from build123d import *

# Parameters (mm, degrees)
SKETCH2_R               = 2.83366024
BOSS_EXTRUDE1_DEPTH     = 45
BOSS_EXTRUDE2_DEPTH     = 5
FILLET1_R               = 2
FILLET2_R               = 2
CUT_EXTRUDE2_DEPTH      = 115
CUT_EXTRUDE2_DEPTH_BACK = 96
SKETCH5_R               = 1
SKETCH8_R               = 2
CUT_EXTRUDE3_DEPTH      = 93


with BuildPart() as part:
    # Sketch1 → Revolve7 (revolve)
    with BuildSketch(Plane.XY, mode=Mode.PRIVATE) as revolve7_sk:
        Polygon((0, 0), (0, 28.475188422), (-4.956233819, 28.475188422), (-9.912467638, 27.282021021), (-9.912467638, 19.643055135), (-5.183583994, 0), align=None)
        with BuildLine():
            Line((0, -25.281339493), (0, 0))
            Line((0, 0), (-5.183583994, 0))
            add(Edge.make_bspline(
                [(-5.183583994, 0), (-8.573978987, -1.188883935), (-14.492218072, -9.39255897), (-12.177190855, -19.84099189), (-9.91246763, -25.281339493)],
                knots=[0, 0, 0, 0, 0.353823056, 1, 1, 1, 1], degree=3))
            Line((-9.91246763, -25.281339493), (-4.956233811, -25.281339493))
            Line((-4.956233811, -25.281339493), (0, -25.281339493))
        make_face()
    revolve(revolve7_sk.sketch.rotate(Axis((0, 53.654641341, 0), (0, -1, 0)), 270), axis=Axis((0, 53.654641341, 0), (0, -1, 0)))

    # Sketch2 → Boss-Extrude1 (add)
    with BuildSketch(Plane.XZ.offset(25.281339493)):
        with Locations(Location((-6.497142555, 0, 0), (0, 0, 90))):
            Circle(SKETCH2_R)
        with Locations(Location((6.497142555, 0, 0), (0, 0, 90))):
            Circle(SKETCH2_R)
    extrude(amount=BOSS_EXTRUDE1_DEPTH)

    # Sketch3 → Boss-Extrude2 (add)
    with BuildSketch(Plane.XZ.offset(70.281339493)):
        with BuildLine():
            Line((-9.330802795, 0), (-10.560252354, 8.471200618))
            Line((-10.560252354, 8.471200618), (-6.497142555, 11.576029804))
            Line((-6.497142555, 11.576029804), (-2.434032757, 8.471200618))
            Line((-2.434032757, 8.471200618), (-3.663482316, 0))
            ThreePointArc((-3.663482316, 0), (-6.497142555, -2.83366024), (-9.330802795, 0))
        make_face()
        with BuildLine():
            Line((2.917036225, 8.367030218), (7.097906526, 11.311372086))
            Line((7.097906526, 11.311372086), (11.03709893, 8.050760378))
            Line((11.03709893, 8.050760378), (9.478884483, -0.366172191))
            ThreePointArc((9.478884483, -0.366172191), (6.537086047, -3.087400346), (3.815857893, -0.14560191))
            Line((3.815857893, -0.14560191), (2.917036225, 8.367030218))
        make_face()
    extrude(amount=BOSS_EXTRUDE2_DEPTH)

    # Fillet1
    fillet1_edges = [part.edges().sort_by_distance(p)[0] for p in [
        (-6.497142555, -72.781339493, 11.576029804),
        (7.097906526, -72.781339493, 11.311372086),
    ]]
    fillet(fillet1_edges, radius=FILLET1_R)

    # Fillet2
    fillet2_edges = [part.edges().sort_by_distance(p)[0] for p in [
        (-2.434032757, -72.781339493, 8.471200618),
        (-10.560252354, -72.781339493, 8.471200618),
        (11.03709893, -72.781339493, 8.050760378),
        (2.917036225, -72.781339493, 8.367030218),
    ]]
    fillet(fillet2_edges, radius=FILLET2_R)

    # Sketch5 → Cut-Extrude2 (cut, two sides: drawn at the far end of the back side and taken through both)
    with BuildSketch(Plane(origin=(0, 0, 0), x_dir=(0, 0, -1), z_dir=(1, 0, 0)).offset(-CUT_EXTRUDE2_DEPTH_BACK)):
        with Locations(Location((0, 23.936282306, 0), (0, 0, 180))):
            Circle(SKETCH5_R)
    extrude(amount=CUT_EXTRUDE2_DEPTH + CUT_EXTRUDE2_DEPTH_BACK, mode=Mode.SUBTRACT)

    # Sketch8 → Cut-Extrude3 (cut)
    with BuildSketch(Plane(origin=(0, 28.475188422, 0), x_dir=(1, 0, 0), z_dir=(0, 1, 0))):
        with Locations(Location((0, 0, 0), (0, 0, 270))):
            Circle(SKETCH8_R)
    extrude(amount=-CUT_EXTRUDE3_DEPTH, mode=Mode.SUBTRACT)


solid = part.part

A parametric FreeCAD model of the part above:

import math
import FreeCAD as App
import Part
import Sketcher


def edges_at(feature, points):
    """Names of the edges that pass closest to the given points."""
    edges = feature.Shape.Edges
    near = lambda p: min(range(len(edges)), key=lambda i: edges[i].distToShape(Part.Vertex(*p))[0])
    return sorted({f"Edge{near(p) + 1}" for p in points})

doc = App.newDocument("Part")
body = doc.addObject("PartDesign::Body", "Body")

sketch1 = doc.addObject("Sketcher::SketchObject", "Sketch")
body.addObject(sketch1)
sketch1.AttachmentSupport = (doc.XY_Plane, [""])
sketch1.MapMode = "FlatFace"
sketch1.addGeometry(Part.LineSegment(App.Vector(0, 28.475188, 0), App.Vector(-4.956234, 28.475188, 0)), False)
sketch1.addGeometry(Part.LineSegment(App.Vector(-4.956234, 28.475188, 0), App.Vector(-9.912468, 27.282021, 0)), False)
sketch1.addGeometry(Part.LineSegment(App.Vector(-9.912468, 27.282021, 0), App.Vector(-9.912468, 19.643055, 0)), False)
sketch1.addGeometry(Part.LineSegment(App.Vector(-9.912468, 19.643055, 0), App.Vector(-5.183584, 0, 0)), False)
sketch1.addGeometry(Part.BSplineCurve([App.Vector(-5.183584, 0, 0), App.Vector(-8.573979, -1.188884, 0), App.Vector(-14.492218, -9.392559, 0), App.Vector(-12.177191, -19.840992, 0), App.Vector(-9.912468, -25.281339, 0)], [4, 1, 4], [0, 0.353823056, 1], False, 3, [1, 1, 1, 1, 1], False), False)
sketch1.addGeometry(Part.LineSegment(App.Vector(-9.912468, -25.281339, 0), App.Vector(0, -25.281339, 0)), False)
sketch1.addGeometry(Part.LineSegment(App.Vector(0, -25.281339, 0), App.Vector(0, 28.475188, 0)), False)
sketch1.addConstraint(Sketcher.Constraint("Block", 4))
sketch1.addConstraint(Sketcher.Constraint("Coincident", 0, 2, 1, 1))
sketch1.addConstraint(Sketcher.Constraint("Coincident", 1, 2, 2, 1))
sketch1.addConstraint(Sketcher.Constraint("Coincident", 2, 2, 3, 1))
sketch1.addConstraint(Sketcher.Constraint("Coincident", 3, 2, 4, 1))
sketch1.addConstraint(Sketcher.Constraint("Coincident", 4, 2, 5, 1))
sketch1.addConstraint(Sketcher.Constraint("Coincident", 5, 2, 6, 1))
sketch1.addConstraint(Sketcher.Constraint("Coincident", 6, 2, 0, 1))
sketch1.addConstraint(Sketcher.Constraint("Horizontal", 0))
sketch1.addConstraint(Sketcher.Constraint("Vertical", 2))
sketch1.addConstraint(Sketcher.Constraint("Horizontal", 5))
sketch1.addConstraint(Sketcher.Constraint("Vertical", 6))
sketch1.addConstraint(Sketcher.Constraint("PointOnObject", 5, 2, -2))
sketch1.addConstraint(Sketcher.Constraint("DistanceX", 0, 2, 0, 1, 4.956234))
sketch1.addConstraint(Sketcher.Constraint("DistanceY", 2, 2, 2, 1, 7.638966))
sketch1.addConstraint(Sketcher.Constraint("DistanceY", 6, 1, 6, 2, 53.756528))
sketch1.addConstraint(Sketcher.Constraint("DistanceY", -1, 1, 1, 2, 27.282021))
sketch1.addConstraint(Sketcher.Constraint("Distance", 1, 5.097833))
revolution = doc.addObject("PartDesign::Revolution", "Revolution")
body.addObject(revolution)
revolution.Profile = sketch1
revolution.ReferenceAxis = (sketch1, ["V_Axis"])
revolution.Angle = 360

sketch2 = doc.addObject("Sketcher::SketchObject", "Sketch001")
body.addObject(sketch2)
sketch2.AttachmentSupport = (doc.XZ_Plane, [""])
sketch2.MapMode = "FlatFace"
sketch2.AttachmentOffset = App.Placement(App.Vector(0, 0, 25.281339), App.Rotation())
sketch2.addGeometry(Part.Circle(App.Vector(-6.5, 0, 0), App.Vector(0, 0, 1), 2.8), False)
sketch2.addGeometry(Part.Circle(App.Vector(6.5, 0, 0), App.Vector(0, 0, 1), 2.8), False)
sketch2.addConstraint(Sketcher.Constraint("Equal", 0, 1))
sketch2.addConstraint(Sketcher.Constraint("Symmetric", 0, 3, 1, 3, -1, 1))
sketch2.addConstraint(Sketcher.Constraint("PointOnObject", 0, 3, -1))
sketch2.addConstraint(Sketcher.Constraint("Diameter", 0, 5.66732))
sketch2.addConstraint(Sketcher.Constraint("DistanceX", 0, 3, -1, 1, 6.497143))
pad1 = doc.addObject("PartDesign::Pad", "Pad")
body.addObject(pad1)
pad1.Profile = sketch2
pad1.Length = 45

sketch3 = doc.addObject("Sketcher::SketchObject", "Sketch002")
body.addObject(sketch3)
sketch3.AttachmentSupport = (doc.XZ_Plane, [""])
sketch3.MapMode = "FlatFace"
sketch3.AttachmentOffset = App.Placement(App.Vector(0, 0, 70.281339), App.Rotation())
sketch3.addGeometry(Part.LineSegment(App.Vector(-10.560252, 8.471201, 0), App.Vector(-9.330803, 0, 0)), False)
sketch3.addGeometry(Part.ArcOfCircle(Part.Circle(App.Vector(-6.497143, 0, 0), App.Vector(0, 0, 1), 2.83366), math.radians(180), math.radians(360)), False)
sketch3.addGeometry(Part.LineSegment(App.Vector(-3.663482, 0, 0), App.Vector(-2.434033, 8.471201, 0)), False)
sketch3.addGeometry(Part.LineSegment(App.Vector(-2.434033, 8.471201, 0), App.Vector(-6.497143, 11.57603, 0)), False)
sketch3.addGeometry(Part.LineSegment(App.Vector(-6.497143, 11.57603, 0), App.Vector(-10.560252, 8.471201, 0)), False)
sketch3.addGeometry(Part.LineSegment(App.Vector(7.097907, 11.311372, 0), App.Vector(2.917036, 8.36703, 0)), False)
sketch3.addGeometry(Part.LineSegment(App.Vector(2.917036, 8.36703, 0), App.Vector(3.815858, -0.145602, 0)), False)
sketch3.addGeometry(Part.ArcOfCircle(Part.Circle(App.Vector(6.647371, -0.255887, 0), App.Vector(0, 0, 1), 2.83366), math.radians(177.769503), math.radians(357.769503)), False)
sketch3.addGeometry(Part.LineSegment(App.Vector(9.478884, -0.366172, 0), App.Vector(11.037099, 8.05076, 0)), False)
sketch3.addGeometry(Part.LineSegment(App.Vector(11.037099, 8.05076, 0), App.Vector(7.097907, 11.311372, 0)), False)
sketch3.addConstraint(Sketcher.Constraint("Coincident", 0, 2, 1, 1))
sketch3.addConstraint(Sketcher.Constraint("Coincident", 1, 2, 2, 1))
sketch3.addConstraint(Sketcher.Constraint("Coincident", 2, 2, 3, 1))
sketch3.addConstraint(Sketcher.Constraint("Coincident", 3, 2, 4, 1))
sketch3.addConstraint(Sketcher.Constraint("Coincident", 4, 2, 0, 1))
sketch3.addConstraint(Sketcher.Constraint("Coincident", 5, 2, 6, 1))
sketch3.addConstraint(Sketcher.Constraint("Coincident", 6, 2, 7, 1))
sketch3.addConstraint(Sketcher.Constraint("Coincident", 7, 2, 8, 1))
sketch3.addConstraint(Sketcher.Constraint("Coincident", 8, 2, 9, 1))
sketch3.addConstraint(Sketcher.Constraint("Coincident", 9, 2, 5, 1))
sketch3.addConstraint(Sketcher.Constraint("PointOnObject", 1, 3, -1))
sketch3.addConstraint(Sketcher.Constraint("PointOnObject", 0, 2, -1))
sketch3.addConstraint(Sketcher.Constraint("PointOnObject", 1, 2, -1))
sketch3.addConstraint(Sketcher.Constraint("Radius", 1, 2.83366))
sketch3.addConstraint(Sketcher.Constraint("Radius", 7, 2.83366))
sketch3.addConstraint(Sketcher.Constraint("DistanceY", 5, 2, 3, 2, 3.209))
sketch3.addConstraint(Sketcher.Constraint("DistanceX", 1, 3, 6, 2, 10.313))
sketch3.addConstraint(Sketcher.Constraint("DistanceY", -1, 1, 2, 2, 8.471201))
sketch3.addConstraint(Sketcher.Constraint("DistanceY", -1, 1, 4, 2, 8.471201))
sketch3.addConstraint(Sketcher.Constraint("DistanceY", 6, 2, -1, 1, 0.145602))
sketch3.addConstraint(Sketcher.Constraint("DistanceX", -1, 1, 8, 2, 11.037099))
sketch3.addConstraint(Sketcher.Constraint("DistanceX", -1, 1, 7, 3, 6.647371))
sketch3.addConstraint(Sketcher.Constraint("DistanceY", -1, 1, 3, 2, 11.57603))
sketch3.addConstraint(Sketcher.Constraint("DistanceY", -1, 1, 8, 2, 8.05076))
sketch3.addConstraint(Sketcher.Constraint("DistanceX", 1, 2, 2, 2, 1.22945))
sketch3.addConstraint(Sketcher.Constraint("DistanceX", 3, 2, 2, 2, 4.06311))
sketch3.addConstraint(Sketcher.Constraint("DistanceX", 4, 2, 3, 2, 4.06311))
sketch3.addConstraint(Sketcher.Constraint("DistanceX", 2, 2, 5, 2, 5.351069))
sketch3.addConstraint(Sketcher.Constraint("DistanceY", 7, 2, 6, 2, 0.22057))
sketch3.addConstraint(Sketcher.Constraint("DistanceX", 6, 2, 8, 2, 7.221241))
sketch3.addConstraint(Sketcher.Constraint("DistanceY", 8, 2, 9, 2, 3.260612))
sketch3.addConstraint(Sketcher.Constraint("DistanceX", 5, 2, 9, 2, 4.18087))
pad2 = doc.addObject("PartDesign::Pad", "Pad001")
body.addObject(pad2)
pad2.Profile = sketch3
pad2.Length = 5
doc.recompute()

fillet = doc.addObject("PartDesign::Fillet", "Fillet")
body.addObject(fillet)
fillet.Base = (pad2, edges_at(pad2, [(-6.497, -72.781, 11.576), (7.098, -72.781, 11.311)]))
fillet.Radius = 2
doc.recompute()

fillet2 = doc.addObject("PartDesign::Fillet", "Fillet001")
body.addObject(fillet2)
fillet2.Base = (fillet, edges_at(fillet, [
    (-2.434, -72.781, 8.471),
    (-10.56, -72.781, 8.471),
    (11.037, -72.781, 8.051),
    (2.917, -72.781, 8.367),
]))
fillet2.Radius = 2

sketch4 = doc.addObject("Sketcher::SketchObject", "Sketch003")
body.addObject(sketch4)
sketch4.AttachmentSupport = (doc.YZ_Plane, [""])
sketch4.MapMode = "FlatFace"
sketch4.addGeometry(Part.Circle(App.Vector(23.9, 0, 0), App.Vector(0, 0, 1), 1), False)
sketch4.addConstraint(Sketcher.Constraint("PointOnObject", 0, 3, -1))
sketch4.addConstraint(Sketcher.Constraint("Diameter", 0, 2.0))
sketch4.addConstraint(Sketcher.Constraint("DistanceX", -1, 1, 0, 3, 23.936282))
pocket1 = doc.addObject("PartDesign::Pocket", "Pocket")
body.addObject(pocket1)
pocket1.Profile = sketch4
pocket1.Type = "ThroughAll"
pocket1.Midplane = True

sketch5 = doc.addObject("Sketcher::SketchObject", "Sketch004")
body.addObject(sketch5)
sketch5.AttachmentSupport = (doc.XZ_Plane, [""])
sketch5.MapMode = "FlatFace"
sketch5.AttachmentOffset = App.Placement(App.Vector(0, 0, -28.475188), App.Rotation())
sketch5.addGeometry(Part.Circle(App.Vector(0, 0, 0), App.Vector(0, 0, 1), 2), False)
sketch5.addConstraint(Sketcher.Constraint("Coincident", 0, 3, -1, 1))
sketch5.addConstraint(Sketcher.Constraint("Diameter", 0, 4.0))
pocket2 = doc.addObject("PartDesign::Pocket", "Pocket001")
body.addObject(pocket2)
pocket2.Profile = sketch5
pocket2.Length = 93
pocket2.Reversed = True

doc.recompute()
